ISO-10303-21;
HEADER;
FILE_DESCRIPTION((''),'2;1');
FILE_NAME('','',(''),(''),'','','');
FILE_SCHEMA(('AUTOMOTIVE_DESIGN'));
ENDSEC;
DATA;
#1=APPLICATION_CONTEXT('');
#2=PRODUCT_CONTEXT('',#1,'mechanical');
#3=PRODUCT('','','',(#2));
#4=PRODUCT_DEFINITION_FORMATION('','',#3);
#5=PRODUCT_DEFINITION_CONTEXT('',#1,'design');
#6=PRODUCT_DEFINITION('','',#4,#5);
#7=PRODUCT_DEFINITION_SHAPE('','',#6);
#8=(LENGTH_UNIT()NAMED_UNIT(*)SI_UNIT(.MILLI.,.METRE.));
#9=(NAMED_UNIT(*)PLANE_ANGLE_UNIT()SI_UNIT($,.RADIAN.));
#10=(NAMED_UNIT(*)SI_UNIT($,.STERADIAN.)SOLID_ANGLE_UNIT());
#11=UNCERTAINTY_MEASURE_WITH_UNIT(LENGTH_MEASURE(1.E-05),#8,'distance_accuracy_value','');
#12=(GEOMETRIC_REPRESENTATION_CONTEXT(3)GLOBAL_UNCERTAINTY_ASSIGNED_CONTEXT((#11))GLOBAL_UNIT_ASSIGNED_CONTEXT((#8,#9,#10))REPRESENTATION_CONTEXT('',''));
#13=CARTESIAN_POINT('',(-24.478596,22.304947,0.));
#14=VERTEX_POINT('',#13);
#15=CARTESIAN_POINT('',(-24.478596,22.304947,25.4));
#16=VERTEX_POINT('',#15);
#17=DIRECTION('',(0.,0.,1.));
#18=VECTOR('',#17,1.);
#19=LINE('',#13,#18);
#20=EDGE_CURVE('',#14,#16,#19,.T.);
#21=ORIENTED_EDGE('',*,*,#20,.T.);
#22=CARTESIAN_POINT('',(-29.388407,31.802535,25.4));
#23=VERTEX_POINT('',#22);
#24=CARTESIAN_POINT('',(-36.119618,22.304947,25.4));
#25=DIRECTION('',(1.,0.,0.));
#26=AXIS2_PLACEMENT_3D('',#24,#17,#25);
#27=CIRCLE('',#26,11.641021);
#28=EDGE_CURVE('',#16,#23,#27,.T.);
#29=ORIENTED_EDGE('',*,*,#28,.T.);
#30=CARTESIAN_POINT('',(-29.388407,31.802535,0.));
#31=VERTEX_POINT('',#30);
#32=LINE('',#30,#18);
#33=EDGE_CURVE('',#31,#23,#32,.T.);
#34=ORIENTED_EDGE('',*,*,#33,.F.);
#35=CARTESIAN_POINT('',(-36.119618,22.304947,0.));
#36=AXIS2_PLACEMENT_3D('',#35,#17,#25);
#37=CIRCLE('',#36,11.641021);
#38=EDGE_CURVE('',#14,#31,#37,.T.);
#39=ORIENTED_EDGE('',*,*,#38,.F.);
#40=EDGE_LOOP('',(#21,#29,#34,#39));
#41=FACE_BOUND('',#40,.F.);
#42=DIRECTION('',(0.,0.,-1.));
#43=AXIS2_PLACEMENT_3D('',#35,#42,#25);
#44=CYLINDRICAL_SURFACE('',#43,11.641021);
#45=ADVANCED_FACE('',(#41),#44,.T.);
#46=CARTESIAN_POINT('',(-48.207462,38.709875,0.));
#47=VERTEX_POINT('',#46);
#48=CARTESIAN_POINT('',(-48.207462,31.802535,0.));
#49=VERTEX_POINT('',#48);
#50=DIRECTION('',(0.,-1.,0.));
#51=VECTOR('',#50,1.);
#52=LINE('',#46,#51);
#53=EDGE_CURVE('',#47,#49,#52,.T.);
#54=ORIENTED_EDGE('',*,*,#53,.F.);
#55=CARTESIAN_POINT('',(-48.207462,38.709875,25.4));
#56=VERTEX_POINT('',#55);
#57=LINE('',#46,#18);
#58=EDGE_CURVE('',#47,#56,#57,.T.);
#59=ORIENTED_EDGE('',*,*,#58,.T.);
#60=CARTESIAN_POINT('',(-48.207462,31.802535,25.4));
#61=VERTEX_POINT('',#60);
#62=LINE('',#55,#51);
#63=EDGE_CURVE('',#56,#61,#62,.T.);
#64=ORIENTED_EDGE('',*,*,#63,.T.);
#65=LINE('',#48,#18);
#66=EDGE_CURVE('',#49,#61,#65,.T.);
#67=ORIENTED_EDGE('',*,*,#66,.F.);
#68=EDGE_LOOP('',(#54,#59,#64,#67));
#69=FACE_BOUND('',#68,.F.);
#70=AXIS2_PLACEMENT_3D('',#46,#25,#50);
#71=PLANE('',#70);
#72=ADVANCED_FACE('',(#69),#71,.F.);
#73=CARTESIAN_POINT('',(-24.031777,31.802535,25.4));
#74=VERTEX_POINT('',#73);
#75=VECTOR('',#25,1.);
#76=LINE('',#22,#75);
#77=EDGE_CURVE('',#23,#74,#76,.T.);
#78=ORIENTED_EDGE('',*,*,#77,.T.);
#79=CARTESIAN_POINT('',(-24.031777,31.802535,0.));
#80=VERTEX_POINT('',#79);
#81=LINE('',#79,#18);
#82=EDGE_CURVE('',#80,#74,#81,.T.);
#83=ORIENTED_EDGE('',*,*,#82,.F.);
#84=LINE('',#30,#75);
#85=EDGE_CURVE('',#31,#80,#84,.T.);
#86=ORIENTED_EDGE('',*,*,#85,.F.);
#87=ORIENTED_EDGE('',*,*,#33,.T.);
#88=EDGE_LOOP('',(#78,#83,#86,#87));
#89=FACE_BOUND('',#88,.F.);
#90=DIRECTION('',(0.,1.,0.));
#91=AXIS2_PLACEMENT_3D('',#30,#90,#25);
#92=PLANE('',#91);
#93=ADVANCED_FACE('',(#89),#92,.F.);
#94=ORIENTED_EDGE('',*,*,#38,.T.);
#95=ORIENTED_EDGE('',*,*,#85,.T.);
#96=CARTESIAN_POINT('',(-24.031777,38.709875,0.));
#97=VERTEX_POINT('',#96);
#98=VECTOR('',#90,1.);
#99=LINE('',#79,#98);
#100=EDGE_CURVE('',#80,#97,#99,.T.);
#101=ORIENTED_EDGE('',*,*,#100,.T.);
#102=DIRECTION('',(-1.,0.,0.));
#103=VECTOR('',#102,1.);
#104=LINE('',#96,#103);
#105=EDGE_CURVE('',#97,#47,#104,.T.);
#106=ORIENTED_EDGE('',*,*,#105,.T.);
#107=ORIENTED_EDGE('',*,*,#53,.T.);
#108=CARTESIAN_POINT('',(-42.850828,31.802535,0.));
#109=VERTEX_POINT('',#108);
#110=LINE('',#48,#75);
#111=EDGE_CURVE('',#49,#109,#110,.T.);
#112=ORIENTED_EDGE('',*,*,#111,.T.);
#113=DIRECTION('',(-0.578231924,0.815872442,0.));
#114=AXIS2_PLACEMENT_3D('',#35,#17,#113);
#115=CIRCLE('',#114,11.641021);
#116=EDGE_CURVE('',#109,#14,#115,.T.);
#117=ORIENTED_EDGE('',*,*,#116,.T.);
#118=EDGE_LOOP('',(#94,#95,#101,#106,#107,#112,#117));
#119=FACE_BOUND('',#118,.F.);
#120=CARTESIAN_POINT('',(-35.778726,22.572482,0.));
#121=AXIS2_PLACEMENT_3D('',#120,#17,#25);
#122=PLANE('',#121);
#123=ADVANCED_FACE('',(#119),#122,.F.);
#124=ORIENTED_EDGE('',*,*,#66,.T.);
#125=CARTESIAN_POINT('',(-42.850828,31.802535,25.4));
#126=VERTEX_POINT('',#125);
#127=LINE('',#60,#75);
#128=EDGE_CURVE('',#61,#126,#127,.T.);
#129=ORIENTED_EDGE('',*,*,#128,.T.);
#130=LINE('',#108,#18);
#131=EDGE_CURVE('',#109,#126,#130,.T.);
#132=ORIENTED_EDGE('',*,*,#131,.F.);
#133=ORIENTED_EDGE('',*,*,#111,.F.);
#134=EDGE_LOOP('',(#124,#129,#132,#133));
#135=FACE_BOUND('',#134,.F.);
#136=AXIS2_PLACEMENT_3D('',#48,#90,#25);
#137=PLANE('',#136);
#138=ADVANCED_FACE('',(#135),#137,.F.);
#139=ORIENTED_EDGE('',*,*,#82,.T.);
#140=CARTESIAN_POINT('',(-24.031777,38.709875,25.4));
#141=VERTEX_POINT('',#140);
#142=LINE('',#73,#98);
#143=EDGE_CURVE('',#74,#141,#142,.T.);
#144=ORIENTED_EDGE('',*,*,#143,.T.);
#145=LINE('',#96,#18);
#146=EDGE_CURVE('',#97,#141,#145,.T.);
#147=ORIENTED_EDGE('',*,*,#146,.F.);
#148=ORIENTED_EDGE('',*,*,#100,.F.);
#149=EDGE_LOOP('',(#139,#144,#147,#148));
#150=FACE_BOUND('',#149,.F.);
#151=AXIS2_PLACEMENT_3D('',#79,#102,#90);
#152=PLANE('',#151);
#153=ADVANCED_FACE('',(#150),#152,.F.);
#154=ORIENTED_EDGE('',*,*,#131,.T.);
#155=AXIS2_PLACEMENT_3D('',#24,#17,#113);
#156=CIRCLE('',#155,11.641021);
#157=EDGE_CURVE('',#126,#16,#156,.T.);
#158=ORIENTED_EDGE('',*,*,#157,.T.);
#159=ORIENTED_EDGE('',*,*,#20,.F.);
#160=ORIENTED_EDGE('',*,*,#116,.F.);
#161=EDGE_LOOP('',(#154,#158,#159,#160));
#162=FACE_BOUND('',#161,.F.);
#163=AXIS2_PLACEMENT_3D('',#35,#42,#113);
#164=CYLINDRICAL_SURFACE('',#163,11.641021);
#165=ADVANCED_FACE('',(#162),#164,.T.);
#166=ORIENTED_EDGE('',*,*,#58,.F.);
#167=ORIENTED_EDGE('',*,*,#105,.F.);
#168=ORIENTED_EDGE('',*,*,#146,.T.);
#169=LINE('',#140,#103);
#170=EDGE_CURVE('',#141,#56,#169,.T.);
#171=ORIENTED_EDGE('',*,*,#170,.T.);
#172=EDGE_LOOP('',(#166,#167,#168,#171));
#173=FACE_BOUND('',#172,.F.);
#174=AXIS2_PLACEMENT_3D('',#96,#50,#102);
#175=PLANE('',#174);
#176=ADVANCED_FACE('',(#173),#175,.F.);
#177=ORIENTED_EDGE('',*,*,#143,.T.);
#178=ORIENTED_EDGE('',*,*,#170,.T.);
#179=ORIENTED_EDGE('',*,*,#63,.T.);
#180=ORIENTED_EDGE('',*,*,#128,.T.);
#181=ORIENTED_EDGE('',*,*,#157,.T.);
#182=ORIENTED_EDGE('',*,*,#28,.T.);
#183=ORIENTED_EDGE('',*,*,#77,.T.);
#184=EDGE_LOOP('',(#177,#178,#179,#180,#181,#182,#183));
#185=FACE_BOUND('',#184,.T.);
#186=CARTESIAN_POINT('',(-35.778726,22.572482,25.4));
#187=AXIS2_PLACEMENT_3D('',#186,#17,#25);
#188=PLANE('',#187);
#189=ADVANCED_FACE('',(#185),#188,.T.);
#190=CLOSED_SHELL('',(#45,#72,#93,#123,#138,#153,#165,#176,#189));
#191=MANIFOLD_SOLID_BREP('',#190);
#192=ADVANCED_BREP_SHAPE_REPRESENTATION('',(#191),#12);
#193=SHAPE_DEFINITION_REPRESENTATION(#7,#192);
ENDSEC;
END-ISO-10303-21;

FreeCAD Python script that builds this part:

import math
import FreeCAD as App
import Part
import Sketcher
from FreeCAD import Vector
Q = App.Units.Quantity

doc = App.newDocument("Part")
body = doc.addObject("PartDesign::Body", "Body")

sketch1 = doc.addObject("Sketcher::SketchObject", "Sketch")
body.addObject(sketch1)
sketch1.AttachmentSupport = (doc.XY_Plane, [""])
sketch1.MapMode = "FlatFace"
sketch1.addGeometry(Part.ArcOfCircle(Part.Circle(Vector(-36, 22, 0), Vector(0, 0, 1), 12), math.radians(125), math.radians(360)), False)
sketch1.addGeometry(Part.ArcOfCircle(Part.Circle(Vector(-36, 22, 0), Vector(0, 0, 1), 12), math.radians(0), math.radians(55)), False)
sketch1.addGeometry(Part.LineSegment(Vector(-29, 32, 0), Vector(-24, 32, 0)), False)
sketch1.addGeometry(Part.LineSegment(Vector(-24, 32, 0), Vector(-24, 39, 0)), False)
sketch1.addGeometry(Part.LineSegment(Vector(-24, 39, 0), Vector(-48, 39, 0)), False)
sketch1.addGeometry(Part.LineSegment(Vector(-48, 39, 0), Vector(-48, 32, 0)), False)
sketch1.addGeometry(Part.LineSegment(Vector(-48, 32, 0), Vector(-43, 32, 0)), False)
sketch1.addConstraint(Sketcher.Constraint("Tangent", 0, 2, 1, 1))
sketch1.addConstraint(Sketcher.Constraint("Coincident", 1, 2, 2, 1))
sketch1.addConstraint(Sketcher.Constraint("Coincident", 2, 2, 3, 1))
sketch1.addConstraint(Sketcher.Constraint("Coincident", 3, 2, 4, 1))
sketch1.addConstraint(Sketcher.Constraint("Coincident", 4, 2, 5, 1))
sketch1.addConstraint(Sketcher.Constraint("Coincident", 5, 2, 6, 1))
sketch1.addConstraint(Sketcher.Constraint("Coincident", 6, 2, 0, 1))
sketch1.addConstraint(Sketcher.Constraint("Horizontal", 2))
sketch1.addConstraint(Sketcher.Constraint("Vertical", 3))
sketch1.addConstraint(Sketcher.Constraint("Horizontal", 4))
sketch1.addConstraint(Sketcher.Constraint("Vertical", 5))
sketch1.addConstraint(Sketcher.Constraint("Horizontal", 6))
sketch1.addConstraint(Sketcher.Constraint("Equal", 0, 1))
sketch1.addConstraint(Sketcher.Constraint("Horizontal", 1, 3, 0, 2))
sketch1.addConstraint(Sketcher.Constraint("Horizontal", 2, 2, 5, 2))
sketch1.addConstraint(Sketcher.Constraint("Radius", 0, Q("11.641021 mm")))
sketch1.addConstraint(Sketcher.Constraint("DistanceX", 2, 1, 2, 2, Q("5.35663 mm")))
sketch1.addConstraint(Sketcher.Constraint("DistanceY", 3, 1, 3, 2, Q("6.90734 mm")))
sketch1.addConstraint(Sketcher.Constraint("DistanceX", 4, 2, 4, 1, Q("24.175685 mm")))
sketch1.addConstraint(Sketcher.Constraint("DistanceX", 6, 1, 6, 2, Q("5.356634 mm")))
sketch1.addConstraint(Sketcher.Constraint("DistanceX", 4, 2, -1, 1, Q("48.207462 mm")))
sketch1.addConstraint(Sketcher.Constraint("DistanceY", -1, 1, 0, 3, Q("22.304947 mm")))
pad1 = doc.addObject("PartDesign::Pad", "Pad")
body.addObject(pad1)
pad1.Profile = sketch1
pad1.Length = Q("1 in")

doc.recompute()
